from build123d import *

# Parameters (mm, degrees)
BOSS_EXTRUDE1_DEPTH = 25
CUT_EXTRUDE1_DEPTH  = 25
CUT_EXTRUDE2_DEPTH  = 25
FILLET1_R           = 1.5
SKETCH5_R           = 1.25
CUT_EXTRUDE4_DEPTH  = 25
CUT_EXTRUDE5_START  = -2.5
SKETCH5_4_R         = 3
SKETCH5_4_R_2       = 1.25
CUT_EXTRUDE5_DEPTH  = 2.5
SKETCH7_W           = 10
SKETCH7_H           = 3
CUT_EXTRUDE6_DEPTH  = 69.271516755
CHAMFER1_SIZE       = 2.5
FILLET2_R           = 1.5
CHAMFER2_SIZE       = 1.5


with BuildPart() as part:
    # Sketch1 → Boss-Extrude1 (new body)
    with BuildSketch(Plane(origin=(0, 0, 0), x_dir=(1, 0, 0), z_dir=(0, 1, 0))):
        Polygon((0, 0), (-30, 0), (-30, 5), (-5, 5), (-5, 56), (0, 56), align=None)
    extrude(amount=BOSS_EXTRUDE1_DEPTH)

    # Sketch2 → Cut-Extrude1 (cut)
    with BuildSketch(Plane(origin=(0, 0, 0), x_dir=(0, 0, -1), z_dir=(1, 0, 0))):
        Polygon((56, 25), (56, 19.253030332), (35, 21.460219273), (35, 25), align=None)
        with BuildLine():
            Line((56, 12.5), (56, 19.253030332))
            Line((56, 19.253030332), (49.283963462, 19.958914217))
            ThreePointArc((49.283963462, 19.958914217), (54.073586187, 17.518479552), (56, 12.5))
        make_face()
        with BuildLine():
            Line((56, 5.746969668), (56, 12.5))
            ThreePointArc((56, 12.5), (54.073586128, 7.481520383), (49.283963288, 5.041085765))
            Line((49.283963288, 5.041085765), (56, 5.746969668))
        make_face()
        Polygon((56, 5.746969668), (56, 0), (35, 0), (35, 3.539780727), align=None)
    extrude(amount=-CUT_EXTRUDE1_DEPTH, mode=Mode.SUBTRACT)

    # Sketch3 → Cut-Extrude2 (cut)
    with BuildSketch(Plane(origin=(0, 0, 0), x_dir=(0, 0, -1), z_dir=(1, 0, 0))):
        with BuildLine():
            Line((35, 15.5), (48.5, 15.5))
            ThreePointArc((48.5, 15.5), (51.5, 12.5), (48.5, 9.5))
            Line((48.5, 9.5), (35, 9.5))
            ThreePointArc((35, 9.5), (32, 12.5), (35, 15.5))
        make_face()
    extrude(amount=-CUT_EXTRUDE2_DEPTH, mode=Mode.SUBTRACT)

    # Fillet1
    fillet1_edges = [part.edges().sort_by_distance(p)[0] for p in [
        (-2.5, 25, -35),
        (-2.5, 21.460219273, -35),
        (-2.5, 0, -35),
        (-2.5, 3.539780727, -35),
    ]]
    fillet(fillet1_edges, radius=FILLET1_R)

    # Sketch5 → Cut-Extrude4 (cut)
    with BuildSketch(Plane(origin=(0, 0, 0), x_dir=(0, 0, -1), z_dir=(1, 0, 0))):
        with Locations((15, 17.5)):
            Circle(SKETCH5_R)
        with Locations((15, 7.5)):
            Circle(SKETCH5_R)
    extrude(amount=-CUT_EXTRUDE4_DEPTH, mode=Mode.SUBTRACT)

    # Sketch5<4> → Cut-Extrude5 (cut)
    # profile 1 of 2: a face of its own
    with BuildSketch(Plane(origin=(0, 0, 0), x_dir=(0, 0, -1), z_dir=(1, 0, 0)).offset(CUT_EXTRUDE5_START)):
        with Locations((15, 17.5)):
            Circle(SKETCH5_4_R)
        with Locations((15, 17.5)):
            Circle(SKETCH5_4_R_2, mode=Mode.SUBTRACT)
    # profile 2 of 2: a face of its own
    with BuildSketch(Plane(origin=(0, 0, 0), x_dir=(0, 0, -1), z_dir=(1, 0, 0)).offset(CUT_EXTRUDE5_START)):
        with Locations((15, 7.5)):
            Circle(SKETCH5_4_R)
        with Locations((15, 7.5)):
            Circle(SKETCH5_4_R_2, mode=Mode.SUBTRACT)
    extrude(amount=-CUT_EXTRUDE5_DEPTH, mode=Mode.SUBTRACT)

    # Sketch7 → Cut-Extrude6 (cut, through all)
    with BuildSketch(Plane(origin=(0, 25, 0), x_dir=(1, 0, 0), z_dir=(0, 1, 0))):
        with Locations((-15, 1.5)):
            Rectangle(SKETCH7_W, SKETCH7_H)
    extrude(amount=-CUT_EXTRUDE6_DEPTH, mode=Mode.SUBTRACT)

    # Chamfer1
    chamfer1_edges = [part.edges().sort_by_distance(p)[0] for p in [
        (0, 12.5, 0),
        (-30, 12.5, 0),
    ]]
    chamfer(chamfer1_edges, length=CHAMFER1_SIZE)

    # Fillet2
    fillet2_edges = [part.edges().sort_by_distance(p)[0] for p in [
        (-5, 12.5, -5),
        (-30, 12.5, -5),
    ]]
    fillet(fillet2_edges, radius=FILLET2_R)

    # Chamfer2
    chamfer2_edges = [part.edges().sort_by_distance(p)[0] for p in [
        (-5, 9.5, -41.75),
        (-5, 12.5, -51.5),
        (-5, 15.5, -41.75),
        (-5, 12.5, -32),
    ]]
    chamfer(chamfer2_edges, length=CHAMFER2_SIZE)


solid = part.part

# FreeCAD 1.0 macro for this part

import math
import FreeCAD as App
import Part
import Sketcher
Q = App.Units.Quantity


def edges_at(feature, points):
    """Names of the edges that pass closest to the given points."""
    edges = feature.Shape.Edges
    near = lambda p: min(range(len(edges)), key=lambda i: edges[i].distToShape(Part.Vertex(*p))[0])
    return sorted({f"Edge{near(p) + 1}" for p in points})

doc = App.newDocument("Part")
body = doc.addObject("PartDesign::Body", "Body")

# Sketch on XZ plane
sketch1 = body.newObject("Sketcher::SketchObject", "Sketch")
sketch1.AttachmentSupport = (doc.getObject("XZ_Plane"), [""])
sketch1.MapMode = "FlatFace"
sketch1.addGeometry([
    Part.LineSegment(App.Vector(-30, 0, 0), App.Vector(0, 0, 0)),  # 0
    Part.LineSegment(App.Vector(0, 0, 0), App.Vector(0, -56, 0)),  # 1
    Part.LineSegment(App.Vector(0, -56, 0), App.Vector(-5, -56, 0)),  # 2
    Part.LineSegment(App.Vector(-5, -56, 0), App.Vector(-5, -5, 0)),  # 3
    Part.LineSegment(App.Vector(-5, -5, 0), App.Vector(-30, -5, 0)),  # 4
    Part.LineSegment(App.Vector(-30, -5, 0), App.Vector(-30, 0, 0)),  # 5
], False)
sketch1.addConstraint([
    Sketcher.Constraint("Coincident", 0, 2, 1, 1),
    Sketcher.Constraint("Coincident", 1, 2, 2, 1),
    Sketcher.Constraint("Coincident", 2, 2, 3, 1),
    Sketcher.Constraint("Coincident", 3, 2, 4, 1),
    Sketcher.Constraint("Coincident", 4, 2, 5, 1),
    Sketcher.Constraint("Coincident", 5, 2, 0, 1),
    Sketcher.Constraint("Horizontal", 0),
    Sketcher.Constraint("Vertical", 1),
    Sketcher.Constraint("Horizontal", 2),
    Sketcher.Constraint("Vertical", 3),
    Sketcher.Constraint("Horizontal", 4),
    Sketcher.Constraint("Vertical", 5),
    Sketcher.Constraint("Coincident", 0, 2, -1, 1),
    Sketcher.Constraint("Equal", 2, 5),
    Sketcher.Constraint("DistanceX", 0, 1, 0, 2, Q("30 mm")),
    Sketcher.Constraint("DistanceX", 2, 2, 2, 1, Q("5 mm")),
    Sketcher.Constraint("DistanceY", 1, 2, 1, 1, Q("56 mm")),
])
pad1 = body.newObject("PartDesign::Pad", "Pad")
pad1.Profile = sketch1
pad1.Length = 25
pad1.Reversed = True

# Sketch on YZ plane
sketch2 = body.newObject("Sketcher::SketchObject", "Sketch001")
sketch2.AttachmentSupport = (doc.getObject("YZ_Plane"), [""])
sketch2.MapMode = "FlatFace"
sketch2.addGeometry([
    Part.LineSegment(App.Vector(12.5, -56, 0), App.Vector(25, -56, 0)),  # 0
    Part.LineSegment(App.Vector(25, -56, 0), App.Vector(25, -35, 0)),  # 1
    Part.LineSegment(App.Vector(25, -35, 0), App.Vector(21.460219, -35, 0)),  # 2
    Part.LineSegment(App.Vector(21.460219, -35, 0), App.Vector(19.958914, -49.283963, 0)),  # 3
    Part.ArcOfCircle(Part.Circle(App.Vector(12.5, -48.5, 0), App.Vector(0, 0, 1), 7.5), math.radians(-90), math.radians(-6)),  # 4
    Part.ArcOfCircle(Part.Circle(App.Vector(12.5, -48.5, 0), App.Vector(0, 0, 1), 7.5), math.radians(-174.000001), math.radians(-90)),  # 5
    Part.LineSegment(App.Vector(5.041086, -49.283963, 0), App.Vector(3.539781, -35, 0)),  # 6
    Part.LineSegment(App.Vector(3.539781, -35, 0), App.Vector(0, -35, 0)),  # 7
    Part.LineSegment(App.Vector(0, -35, 0), App.Vector(0, -56, 0)),  # 8
    Part.LineSegment(App.Vector(0, -56, 0), App.Vector(12.5, -56, 0)),  # 9
], False)
sketch2.addConstraint([
    Sketcher.Constraint("Coincident", 0, 2, 1, 1),
    Sketcher.Constraint("Coincident", 1, 2, 2, 1),
    Sketcher.Constraint("Coincident", 2, 2, 3, 1),
    Sketcher.Constraint("Tangent", 3, 2, 4, 2),
    Sketcher.Constraint("Tangent", 4, 1, 0, 1),
    Sketcher.Constraint("Tangent", 5, 1, 6, 1),
    Sketcher.Constraint("Coincident", 6, 2, 7, 1),
    Sketcher.Constraint("Coincident", 7, 2, 8, 1),
    Sketcher.Constraint("Coincident", 8, 2, 9, 1),
    Sketcher.Constraint("Tangent", 9, 2, 5, 2),
    Sketcher.Constraint("Horizontal", 0),
    Sketcher.Constraint("Vertical", 1),
    Sketcher.Constraint("Horizontal", 2),
    Sketcher.Constraint("Horizontal", 7),
    Sketcher.Constraint("Vertical", 8),
    Sketcher.Constraint("Horizontal", 9),
    Sketcher.Constraint("Coincident", 5, 3, 4, 3),
    Sketcher.Constraint("Equal", 4, 5),
    Sketcher.Constraint("PointOnObject", 7, 2, -2),
    Sketcher.Constraint("Horizontal", 3, 2, 5, 1),
    Sketcher.Constraint("Horizontal", 2, 2, 6, 2),
    Sketcher.Constraint("Equal", 2, 7),
    Sketcher.Constraint("Radius", 4, Q("7.5 mm")),
    Sketcher.Constraint("DistanceY", 1, 1, 1, 2, Q("21 mm")),
    Sketcher.Constraint("Angle", 3, Q("-96 deg")),
    Sketcher.Constraint("DistanceX", 0, 1, 0, 2, Q("12.5 mm")),
    Sketcher.Constraint("DistanceY", 0, 2, -1, 1, Q("56 mm")),
])
pocket1 = body.newObject("PartDesign::Pocket", "Pocket")
pocket1.Profile = sketch2
pocket1.Length = 25

# Sketch on YZ plane
sketch3 = body.newObject("Sketcher::SketchObject", "Sketch002")
sketch3.AttachmentSupport = (doc.getObject("YZ_Plane"), [""])
sketch3.MapMode = "FlatFace"
sketch3.addGeometry([
    Part.LineSegment(App.Vector(15.5, -48.5, 0), App.Vector(15.5, -35, 0)),
    Part.ArcOfCircle(Part.Circle(App.Vector(12.5, -35, 0), App.Vector(0, 0, 1), 3), math.radians(0), math.radians(180)),
    Part.LineSegment(App.Vector(9.5, -35, 0), App.Vector(9.5, -48.5, 0)),
    Part.ArcOfCircle(Part.Circle(App.Vector(12.5, -48.5, 0), App.Vector(0, 0, 1), 3), math.radians(180), math.radians(360)),
], False)
sketch3.addConstraint([
    Sketcher.Constraint("Tangent", 0, 2, 1, 1),
    Sketcher.Constraint("Tangent", 1, 2, 2, 1),
    Sketcher.Constraint("Tangent", 2, 2, 3, 1),
    Sketcher.Constraint("Tangent", 3, 2, 0, 1),
    Sketcher.Constraint("Vertical", 0),
    Sketcher.Constraint("Vertical", 2),
    Sketcher.Constraint("Radius", 1, Q("3 mm")),
    Sketcher.Constraint("DistanceY", 0, 1, 0, 2, Q("13.5 mm")),
    Sketcher.Constraint("DistanceY", 1, 3, -1, 1, Q("35 mm")),
    Sketcher.Constraint("DistanceX", -1, 1, 1, 3, Q("12.5 mm")),
])
pocket2 = body.newObject("PartDesign::Pocket", "Pocket001")
pocket2.Profile = sketch3
pocket2.Length = 25
doc.recompute()

fillet = body.newObject("PartDesign::Fillet", "Fillet")
fillet.Base = (pocket2, edges_at(pocket2, [
    (-2.5, 25, -35),
    (-2.5, 21.46, -35),
    (-2.5, 0, -35),
    (-2.5, 3.54, -35),
]))
fillet.Radius = 1.5

# Sketch on YZ plane
sketch4 = body.newObject("Sketcher::SketchObject", "Sketch003")
sketch4.AttachmentSupport = (doc.getObject("YZ_Plane"), [""])
sketch4.MapMode = "FlatFace"
sketch4.addGeometry([
    Part.Circle(App.Vector(17.5, -15, 0), App.Vector(0, 0, 1), 1.25),
    Part.Circle(App.Vector(7.5, -15, 0), App.Vector(0, 0, 1), 1.25),
], False)
sketch4.addConstraint([
    Sketcher.Constraint("Equal", 0, 1),
    Sketcher.Constraint("Horizontal", 0, 3, 1, 3),
    Sketcher.Constraint("Diameter", 0, Q("2.5 mm")),
    Sketcher.Constraint("DistanceY", 0, 3, -1, 1, Q("15 mm")),
    Sketcher.Constraint("DistanceX", 1, 3, 0, 3, Q("10 mm")),
    Sketcher.Constraint("DistanceX", -1, 1, 0, 3, Q("17.5 mm")),
])
pocket3 = body.newObject("PartDesign::Pocket", "Pocket002")
pocket3.Profile = sketch4
pocket3.Length = 25

# Sketch on YZ plane
sketch5 = body.newObject("Sketcher::SketchObject", "Sketch004")
sketch5.AttachmentSupport = (doc.getObject("YZ_Plane"), [""])
sketch5.MapMode = "FlatFace"
sketch5.AttachmentOffset = App.Placement(App.Vector(0, 0, -2.5), App.Rotation())
sketch5.addGeometry([
    Part.Circle(App.Vector(17.5, -15, 0), App.Vector(0, 0, 1), 3),
    Part.Circle(App.Vector(17.5, -15, 0), App.Vector(0, 0, 1), 1.25),
    Part.Circle(App.Vector(7.5, -15, 0), App.Vector(0, 0, 1), 3),
    Part.Circle(App.Vector(7.5, -15, 0), App.Vector(0, 0, 1), 1.25),
], False)
sketch5.addConstraint([
    Sketcher.Constraint("Coincident", 1, 3, 0, 3),
    Sketcher.Constraint("Coincident", 3, 3, 2, 3),
    Sketcher.Constraint("Equal", 0, 2),
    Sketcher.Constraint("Equal", 1, 3),
    Sketcher.Constraint("Horizontal", 1, 3, 2, 3),
    Sketcher.Constraint("Diameter", 0, Q("6 mm")),
    Sketcher.Constraint("Diameter", 1, Q("2.5 mm")),
    Sketcher.Constraint("DistanceY", 0, 3, -1, 1, Q("15 mm")),
    Sketcher.Constraint("DistanceX", 2, 3, 0, 3, Q("10 mm")),
    Sketcher.Constraint("DistanceX", -1, 1, 0, 3, Q("17.5 mm")),
])
pocket4 = body.newObject("PartDesign::Pocket", "Pocket003")
pocket4.Profile = sketch5
pocket4.Length = 2.5

# Sketch on XZ plane
sketch6 = body.newObject("Sketcher::SketchObject", "Sketch005")
sketch6.AttachmentSupport = (doc.getObject("XZ_Plane"), [""])
sketch6.MapMode = "FlatFace"
sketch6.AttachmentOffset = App.Placement(App.Vector(0, 0, -25), App.Rotation())
sketch6.addGeometry([
    Part.LineSegment(App.Vector(-20, -3, 0), App.Vector(-20, 0, 0)),
    Part.LineSegment(App.Vector(-20, 0, 0), App.Vector(-10, 0, 0)),
    Part.LineSegment(App.Vector(-10, 0, 0), App.Vector(-10, -3, 0)),
    Part.LineSegment(App.Vector(-10, -3, 0), App.Vector(-20, -3, 0)),
], False)
sketch6.addConstraint([
    Sketcher.Constraint("Coincident", 0, 2, 1, 1),
    Sketcher.Constraint("Coincident", 1, 2, 2, 1),
    Sketcher.Constraint("Coincident", 2, 2, 3, 1),
    Sketcher.Constraint("Coincident", 3, 2, 0, 1),
    Sketcher.Constraint("Vertical", 0),
    Sketcher.Constraint("Horizontal", 1),
    Sketcher.Constraint("Vertical", 2),
    Sketcher.Constraint("Horizontal", 3),
    Sketcher.Constraint("PointOnObject", 0, 2, -1),
    Sketcher.Constraint("DistanceX", 1, 1, 1, 2, Q("10 mm")),
    Sketcher.Constraint("DistanceY", 0, 1, 0, 2, Q("3 mm")),
    Sketcher.Constraint("DistanceX", 0, 2, -1, 1, Q("20 mm")),
])
pocket5 = body.newObject("PartDesign::Pocket", "Pocket004")
pocket5.Profile = sketch6
pocket5.Type = "ThroughAll"
pocket5.Reversed = True
doc.recompute()

chamfer = body.newObject("PartDesign::Chamfer", "Chamfer")
chamfer.Base = (pocket5, edges_at(pocket5, [(0, 12.5, 0), (-30, 12.5, 0)]))
chamfer.Size = 2.5
doc.recompute()

fillet2 = body.newObject("PartDesign::Fillet", "Fillet001")
fillet2.Base = (chamfer, edges_at(chamfer, [(-5, 12.5, -5), (-30, 12.5, -5)]))
fillet2.Radius = 1.5
doc.recompute()

chamfer2 = body.newObject("PartDesign::Chamfer", "Chamfer001")
chamfer2.Base = (fillet2, edges_at(fillet2, [
    (-5, 9.5, -41.75),
    (-5, 12.5, -51.5),
    (-5, 15.5, -41.75),
    (-5, 12.5, -32),
]))
chamfer2.Size = 1.5

doc.recompute()
